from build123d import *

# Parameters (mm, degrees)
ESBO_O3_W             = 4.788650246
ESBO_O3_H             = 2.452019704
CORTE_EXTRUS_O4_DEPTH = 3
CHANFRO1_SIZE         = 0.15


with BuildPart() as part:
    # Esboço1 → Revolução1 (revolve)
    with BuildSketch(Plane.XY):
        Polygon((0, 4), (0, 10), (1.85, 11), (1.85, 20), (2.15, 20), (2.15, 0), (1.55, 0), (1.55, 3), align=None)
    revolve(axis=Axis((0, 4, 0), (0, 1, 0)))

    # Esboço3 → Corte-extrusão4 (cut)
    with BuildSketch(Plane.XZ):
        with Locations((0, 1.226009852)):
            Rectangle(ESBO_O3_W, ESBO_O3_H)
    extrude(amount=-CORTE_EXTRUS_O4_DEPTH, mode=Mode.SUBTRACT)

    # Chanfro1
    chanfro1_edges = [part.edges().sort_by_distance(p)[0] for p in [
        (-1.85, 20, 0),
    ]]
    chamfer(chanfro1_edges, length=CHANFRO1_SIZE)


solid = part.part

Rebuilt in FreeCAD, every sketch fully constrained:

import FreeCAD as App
import Part
import Sketcher


def edges_at(feature, points):
    """Names of the edges that pass closest to the given points."""
    edges = feature.Shape.Edges
    near = lambda p: min(range(len(edges)), key=lambda i: edges[i].distToShape(Part.Vertex(*p))[0])
    return sorted({f"Edge{near(p) + 1}" for p in points})

doc = App.newDocument("Part")
body = doc.addObject("PartDesign::Body", "Body")

sketch1 = body.newObject("Sketcher::SketchObject", "Sketch")
sketch1.AttachmentSupport = (doc.getObject("XY_Plane"), [""])
sketch1.MapMode = "FlatFace"
sketch1.addGeometry(Part.LineSegment(App.Vector(0, 10, 0), App.Vector(0, 4, 0)), False)
sketch1.addGeometry(Part.LineSegment(App.Vector(0, 4, 0), App.Vector(1.55, 3, 0)), False)
sketch1.addGeometry(Part.LineSegment(App.Vector(1.55, 3, 0), App.Vector(1.55, 0, 0)), False)
sketch1.addGeometry(Part.LineSegment(App.Vector(1.55, 0, 0), App.Vector(2.15, 0, 0)), False)
sketch1.addGeometry(Part.LineSegment(App.Vector(2.15, 0, 0), App.Vector(2.15, 20, 0)), False)
sketch1.addGeometry(Part.LineSegment(App.Vector(2.15, 20, 0), App.Vector(1.85, 20, 0)), False)
sketch1.addGeometry(Part.LineSegment(App.Vector(1.85, 20, 0), App.Vector(1.85, 11, 0)), False)
sketch1.addGeometry(Part.LineSegment(App.Vector(1.85, 11, 0), App.Vector(0, 10, 0)), False)
sketch1.addConstraint(Sketcher.Constraint("Coincident", 0, 2, 1, 1))
sketch1.addConstraint(Sketcher.Constraint("Coincident", 1, 2, 2, 1))
sketch1.addConstraint(Sketcher.Constraint("Coincident", 2, 2, 3, 1))
sketch1.addConstraint(Sketcher.Constraint("Coincident", 3, 2, 4, 1))
sketch1.addConstraint(Sketcher.Constraint("Coincident", 4, 2, 5, 1))
sketch1.addConstraint(Sketcher.Constraint("Coincident", 5, 2, 6, 1))
sketch1.addConstraint(Sketcher.Constraint("Coincident", 6, 2, 7, 1))
sketch1.addConstraint(Sketcher.Constraint("Coincident", 7, 2, 0, 1))
sketch1.addConstraint(Sketcher.Constraint("Vertical", 0))
sketch1.addConstraint(Sketcher.Constraint("Vertical", 2))
sketch1.addConstraint(Sketcher.Constraint("Horizontal", 3))
sketch1.addConstraint(Sketcher.Constraint("Vertical", 4))
sketch1.addConstraint(Sketcher.Constraint("Horizontal", 5))
sketch1.addConstraint(Sketcher.Constraint("Vertical", 6))
sketch1.addConstraint(Sketcher.Constraint("PointOnObject", 0, 2, -2))
sketch1.addConstraint(Sketcher.Constraint("PointOnObject", 2, 2, -1))
sketch1.addConstraint(Sketcher.Constraint("DistanceY", 0, 2, 0, 1, 6.0))
sketch1.addConstraint(Sketcher.Constraint("DistanceY", 2, 2, 2, 1, 3.0))
sketch1.addConstraint(Sketcher.Constraint("DistanceY", 4, 1, 4, 2, 20.0))
sketch1.addConstraint(Sketcher.Constraint("DistanceY", 6, 2, 6, 1, 9.0))
sketch1.addConstraint(Sketcher.Constraint("DistanceX", 3, 1, 3, 2, 0.6))
sketch1.addConstraint(Sketcher.Constraint("DistanceX", 5, 2, 5, 1, 0.3))
sketch1.addConstraint(Sketcher.Constraint("DistanceY", -1, 1, 0, 2, 4.0))
sketch1.addConstraint(Sketcher.Constraint("DistanceX", -1, 1, 1, 2, 1.55))
revolution = body.newObject("PartDesign::Revolution", "Revolution")
revolution.Profile = sketch1
revolution.ReferenceAxis = (sketch1, ["V_Axis"])
revolution.Angle = 360

sketch2 = body.newObject("Sketcher::SketchObject", "Sketch001")
sketch2.AttachmentSupport = (doc.getObject("XZ_Plane"), [""])
sketch2.MapMode = "FlatFace"
sketch2.addGeometry(Part.LineSegment(App.Vector(-2.4, 2.5, 0), App.Vector(-2.4, 0, 0)), False)
sketch2.addGeometry(Part.LineSegment(App.Vector(-2.4, 0, 0), App.Vector(2.4, 0, 0)), False)
sketch2.addGeometry(Part.LineSegment(App.Vector(2.4, 0, 0), App.Vector(2.4, 2.5, 0)), False)
sketch2.addGeometry(Part.LineSegment(App.Vector(2.4, 2.5, 0), App.Vector(-2.4, 2.5, 0)), False)
sketch2.addConstraint(Sketcher.Constraint("Coincident", 0, 2, 1, 1))
sketch2.addConstraint(Sketcher.Constraint("Coincident", 1, 2, 2, 1))
sketch2.addConstraint(Sketcher.Constraint("Coincident", 2, 2, 3, 1))
sketch2.addConstraint(Sketcher.Constraint("Coincident", 3, 2, 0, 1))
sketch2.addConstraint(Sketcher.Constraint("Vertical", 0))
sketch2.addConstraint(Sketcher.Constraint("Horizontal", 1))
sketch2.addConstraint(Sketcher.Constraint("Vertical", 2))
sketch2.addConstraint(Sketcher.Constraint("Horizontal", 3))
sketch2.addConstraint(Sketcher.Constraint("Symmetric", 0, 2, 1, 2, -1, 1))
sketch2.addConstraint(Sketcher.Constraint("DistanceX", 1, 1, 1, 2, 4.78865))
sketch2.addConstraint(Sketcher.Constraint("DistanceY", 0, 2, 0, 1, 2.45202))
pocket1 = body.newObject("PartDesign::Pocket", "Pocket")
pocket1.Profile = sketch2
pocket1.Length = 3
doc.recompute()

chamfer = body.newObject("PartDesign::Chamfer", "Chamfer")
chamfer.Base = (pocket1, edges_at(pocket1, [(-1.85, 20, 0)]))
chamfer.Size = 0.15

doc.recompute()
